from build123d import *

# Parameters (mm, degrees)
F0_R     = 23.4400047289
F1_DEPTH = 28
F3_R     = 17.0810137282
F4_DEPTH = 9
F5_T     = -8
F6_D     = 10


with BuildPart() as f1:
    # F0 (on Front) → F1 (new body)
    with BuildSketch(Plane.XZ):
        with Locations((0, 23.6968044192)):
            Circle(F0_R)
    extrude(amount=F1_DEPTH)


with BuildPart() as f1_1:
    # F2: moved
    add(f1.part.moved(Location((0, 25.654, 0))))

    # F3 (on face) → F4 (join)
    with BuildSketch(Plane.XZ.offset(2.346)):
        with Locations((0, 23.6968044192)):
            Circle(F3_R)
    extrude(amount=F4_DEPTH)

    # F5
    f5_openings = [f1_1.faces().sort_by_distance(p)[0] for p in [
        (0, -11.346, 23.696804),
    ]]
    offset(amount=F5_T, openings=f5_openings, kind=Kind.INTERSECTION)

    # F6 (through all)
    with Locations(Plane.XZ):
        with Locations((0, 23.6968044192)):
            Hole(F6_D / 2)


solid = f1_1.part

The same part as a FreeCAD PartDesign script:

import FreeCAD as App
import Part
import Sketcher

V = App.Vector
Q = App.Units.Quantity


def faces_at(feature, points):
    """Names of the faces that lie closest to the given points."""
    faces = feature.Shape.Faces
    near = lambda p: min(range(len(faces)), key=lambda i: faces[i].distToShape(Part.Vertex(*p))[0])
    return sorted({f"Face{near(p) + 1}" for p in points})

doc = App.newDocument("Part")
params = doc.addObject("Spreadsheet::Sheet", "Params")
for row, (alias, value) in enumerate([
    ("pad1_length", "28 mm"),
    ("pad2_length", "9 mm"),
    ("thickness_wall", "8 mm"),
    ("sketch3_diameter", "10 mm"),
    ("hole_diameter", "10 mm"),
], start=1):
    params.set(f"A{row}", alias)
    params.set(f"B{row}", "=" + value)
    params.setAlias(f"B{row}", alias)

body = doc.addObject("PartDesign::Body", "Body")

sketch1 = body.newObject("Sketcher::SketchObject", "Sketch")
sketch1.AttachmentSupport = (doc.getObject("XZ_Plane"), [""])
sketch1.MapMode = "FlatFace"
sketch1.addGeometry(Part.Circle(V(0, 24, 0), V(0, 0, 1), 23), False)
sketch1.addConstraint(Sketcher.Constraint("PointOnObject", 0, 3, -2))
sketch1.addConstraint(Sketcher.Constraint("Diameter", 0, Q("46.880009 mm")))
sketch1.addConstraint(Sketcher.Constraint("DistanceY", -1, 1, 0, 3, Q("23.696804 mm")))
pad1 = body.newObject("PartDesign::Pad", "Pad")
pad1.Profile = sketch1
pad1.setExpression("Length", "Params.pad1_length")
body2 = doc.addObject("PartDesign::Body", "Body001")
doc.recompute()

body.Placement = App.Placement(V(0, 25.654, 0), App.Rotation(V(0, 0, 1), 0))
boolean = body2.newObject("PartDesign::Boolean", "Boolean")
boolean.Type = "Fuse"
boolean.addObjects([body])

sketch2 = body2.newObject("Sketcher::SketchObject", "Sketch001")
sketch2.AttachmentSupport = (doc.getObject("XZ_Plane001"), [""])
sketch2.MapMode = "FlatFace"
sketch2.AttachmentOffset = App.Placement(V(0, 0, 2.346), App.Rotation())
sketch2.addGeometry(Part.Circle(V(0, 24, 0), V(0, 0, 1), 17), False)
sketch2.addConstraint(Sketcher.Constraint("PointOnObject", 0, 3, -2))
sketch2.addConstraint(Sketcher.Constraint("Diameter", 0, Q("34.162027 mm")))
sketch2.addConstraint(Sketcher.Constraint("DistanceY", -1, 1, 0, 3, Q("23.696804 mm")))
pad2 = body2.newObject("PartDesign::Pad", "Pad001")
pad2.Profile = sketch2
pad2.setExpression("Length", "Params.pad2_length")
doc.recompute()

thickness = body2.newObject("PartDesign::Thickness", "Thickness")
thickness.Base = (pad2, faces_at(pad2, [(0, -11.346, 23.697)]))
thickness.setExpression("Value", "Params.thickness_wall")
thickness.Reversed = True
thickness.Join = "Intersection"

sketch3 = body2.newObject("Sketcher::SketchObject", "Sketch002")
sketch3.AttachmentSupport = (doc.getObject("XZ_Plane001"), [""])
sketch3.MapMode = "FlatFace"
sketch3.addGeometry(Part.Circle(V(0, 24, 0), V(0, 0, 1), 5), False)
sketch3.addConstraint(Sketcher.Constraint("PointOnObject", 0, 3, -2))
sketch3.addConstraint(Sketcher.Constraint("Diameter", 0, Q("10 mm")))
sketch3.addConstraint(Sketcher.Constraint("DistanceY", -1, 1, 0, 3, Q("23.696804 mm")))
sketch3.setExpression("Constraints[1]", "Params.sketch3_diameter")
doc.recompute()
hole = body2.newObject("PartDesign::Hole", "Hole")
hole.Profile = sketch3
hole.ThreadType = "None"
hole.setExpression("Diameter", "Params.hole_diameter")
hole.DepthType = "ThroughAll"

doc.recompute()
